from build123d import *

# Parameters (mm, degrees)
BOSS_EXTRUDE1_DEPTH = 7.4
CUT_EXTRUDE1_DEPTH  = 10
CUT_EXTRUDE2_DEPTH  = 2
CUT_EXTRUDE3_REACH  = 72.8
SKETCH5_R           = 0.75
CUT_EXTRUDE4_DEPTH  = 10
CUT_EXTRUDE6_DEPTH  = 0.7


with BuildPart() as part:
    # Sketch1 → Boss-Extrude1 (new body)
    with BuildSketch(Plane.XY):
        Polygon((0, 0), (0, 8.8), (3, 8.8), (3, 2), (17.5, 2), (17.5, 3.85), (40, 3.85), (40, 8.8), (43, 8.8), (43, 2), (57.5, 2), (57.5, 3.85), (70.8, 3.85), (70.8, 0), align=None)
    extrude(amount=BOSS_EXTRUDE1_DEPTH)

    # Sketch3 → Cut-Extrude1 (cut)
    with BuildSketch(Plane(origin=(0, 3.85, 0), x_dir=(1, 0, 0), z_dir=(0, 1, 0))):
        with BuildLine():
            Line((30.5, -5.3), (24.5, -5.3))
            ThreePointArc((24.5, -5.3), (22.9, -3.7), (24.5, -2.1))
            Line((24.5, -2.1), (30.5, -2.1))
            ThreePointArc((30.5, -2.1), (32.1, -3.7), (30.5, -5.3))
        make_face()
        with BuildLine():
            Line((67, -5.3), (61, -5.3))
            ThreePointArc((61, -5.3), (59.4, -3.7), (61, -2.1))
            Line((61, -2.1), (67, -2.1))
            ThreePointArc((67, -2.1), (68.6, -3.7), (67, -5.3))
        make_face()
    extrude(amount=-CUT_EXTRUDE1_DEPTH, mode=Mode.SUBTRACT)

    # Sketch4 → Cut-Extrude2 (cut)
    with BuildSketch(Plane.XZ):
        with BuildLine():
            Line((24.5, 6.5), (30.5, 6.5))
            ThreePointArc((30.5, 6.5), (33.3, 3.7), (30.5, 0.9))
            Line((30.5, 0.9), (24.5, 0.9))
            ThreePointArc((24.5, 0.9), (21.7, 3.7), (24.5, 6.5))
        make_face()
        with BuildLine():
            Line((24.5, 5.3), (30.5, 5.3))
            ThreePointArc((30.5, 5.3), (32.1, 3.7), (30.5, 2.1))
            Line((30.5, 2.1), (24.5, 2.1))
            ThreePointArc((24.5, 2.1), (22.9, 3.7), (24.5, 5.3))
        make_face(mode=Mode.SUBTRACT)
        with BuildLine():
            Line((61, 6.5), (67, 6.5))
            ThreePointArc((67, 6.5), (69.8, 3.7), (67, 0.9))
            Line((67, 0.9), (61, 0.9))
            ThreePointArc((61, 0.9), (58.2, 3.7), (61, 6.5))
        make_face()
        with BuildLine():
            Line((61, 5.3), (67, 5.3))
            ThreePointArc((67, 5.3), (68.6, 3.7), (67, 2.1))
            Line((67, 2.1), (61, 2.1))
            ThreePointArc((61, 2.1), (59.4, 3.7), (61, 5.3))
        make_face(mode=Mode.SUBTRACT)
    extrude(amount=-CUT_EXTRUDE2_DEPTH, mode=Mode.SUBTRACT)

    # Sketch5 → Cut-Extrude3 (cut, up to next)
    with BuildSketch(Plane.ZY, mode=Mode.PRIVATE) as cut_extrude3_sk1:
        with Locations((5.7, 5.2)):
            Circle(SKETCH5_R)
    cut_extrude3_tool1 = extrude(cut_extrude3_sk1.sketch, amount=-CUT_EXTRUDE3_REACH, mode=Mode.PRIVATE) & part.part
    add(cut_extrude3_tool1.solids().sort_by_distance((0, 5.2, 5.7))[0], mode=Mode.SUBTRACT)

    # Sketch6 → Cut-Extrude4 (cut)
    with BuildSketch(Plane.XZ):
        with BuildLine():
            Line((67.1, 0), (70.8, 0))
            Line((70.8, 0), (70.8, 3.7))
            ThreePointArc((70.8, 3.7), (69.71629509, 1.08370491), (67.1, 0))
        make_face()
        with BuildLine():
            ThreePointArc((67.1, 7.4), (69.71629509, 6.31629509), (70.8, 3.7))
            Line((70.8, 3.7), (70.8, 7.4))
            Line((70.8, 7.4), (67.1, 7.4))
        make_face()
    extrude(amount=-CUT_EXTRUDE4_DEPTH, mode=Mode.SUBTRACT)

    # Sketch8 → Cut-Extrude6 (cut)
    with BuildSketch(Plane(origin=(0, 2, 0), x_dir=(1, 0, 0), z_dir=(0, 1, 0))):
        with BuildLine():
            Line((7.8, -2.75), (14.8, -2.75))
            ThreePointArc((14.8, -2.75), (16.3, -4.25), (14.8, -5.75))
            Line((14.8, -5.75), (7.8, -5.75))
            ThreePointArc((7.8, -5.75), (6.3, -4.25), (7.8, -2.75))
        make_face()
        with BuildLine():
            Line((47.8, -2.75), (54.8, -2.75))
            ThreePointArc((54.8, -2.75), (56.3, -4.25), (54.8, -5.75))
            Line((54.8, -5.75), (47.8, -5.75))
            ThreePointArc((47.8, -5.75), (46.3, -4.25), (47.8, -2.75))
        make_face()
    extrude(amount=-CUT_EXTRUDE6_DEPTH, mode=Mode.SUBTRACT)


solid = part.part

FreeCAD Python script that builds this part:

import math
import FreeCAD as App
import Part
import Sketcher
from FreeCAD import Vector
Q = App.Units.Quantity


def add_polygon(sketch, points):
    """Adds a closed chain of lines whose ends are joined by coincident constraints."""
    first, n = sketch.GeometryCount, len(points)
    for a, b in zip(points, points[1:] + points[:1]):
        sketch.addGeometry(Part.LineSegment(App.Vector(*a, 0), App.Vector(*b, 0)), False)
    for i in range(n):
        sketch.addConstraint(Sketcher.Constraint("Coincident", first + i, 2, first + (i + 1) % n, 1))

doc = App.newDocument("Part")
body = doc.addObject("PartDesign::Body", "Body")

# Sketch on XY plane
sketch1 = body.newObject("Sketcher::SketchObject", "Sketch")
sketch1.AttachmentSupport = (doc.getObject("XY_Plane"), [""])
sketch1.MapMode = "FlatFace"
add_polygon(sketch1, [(0, 8.8), (0, 0), (70.8, 0), (70.8, 3.9), (57.5, 3.9), (57.5, 2), (43, 2), (43, 8.8), (40, 8.8), (40, 3.9), (17.5, 3.9), (17.5, 2), (3, 2), (3, 8.8)])  # lines 0-13
sketch1.addConstraint(Sketcher.Constraint("Vertical", 0))
sketch1.addConstraint(Sketcher.Constraint("Horizontal", 1))
sketch1.addConstraint(Sketcher.Constraint("Vertical", 2))
sketch1.addConstraint(Sketcher.Constraint("Horizontal", 3))
sketch1.addConstraint(Sketcher.Constraint("Vertical", 4))
sketch1.addConstraint(Sketcher.Constraint("Horizontal", 5))
sketch1.addConstraint(Sketcher.Constraint("Vertical", 6))
sketch1.addConstraint(Sketcher.Constraint("Horizontal", 7))
sketch1.addConstraint(Sketcher.Constraint("Vertical", 8))
sketch1.addConstraint(Sketcher.Constraint("Horizontal", 9))
sketch1.addConstraint(Sketcher.Constraint("Vertical", 10))
sketch1.addConstraint(Sketcher.Constraint("Horizontal", 11))
sketch1.addConstraint(Sketcher.Constraint("Vertical", 12))
sketch1.addConstraint(Sketcher.Constraint("Horizontal", 13))
sketch1.addConstraint(Sketcher.Constraint("Coincident", 0, 2, -1, 1))
sketch1.addConstraint(Sketcher.Constraint("Horizontal", 3, 2, 8, 2))
sketch1.addConstraint(Sketcher.Constraint("Horizontal", 5, 2, 10, 2))
sketch1.addConstraint(Sketcher.Constraint("Horizontal", 7, 2, 12, 2))
sketch1.addConstraint(Sketcher.Constraint("Equal", 5, 11))
sketch1.addConstraint(Sketcher.Constraint("Equal", 7, 13))
sketch1.addConstraint(Sketcher.Constraint("DistanceX", 7, 2, 7, 1, Q("3 mm")))
sketch1.addConstraint(Sketcher.Constraint("DistanceX", 1, 1, 1, 2, Q("70.8 mm")))
sketch1.addConstraint(Sketcher.Constraint("DistanceX", 3, 2, 3, 1, Q("13.3 mm")))
sketch1.addConstraint(Sketcher.Constraint("DistanceX", 5, 2, 5, 1, Q("14.5 mm")))
sketch1.addConstraint(Sketcher.Constraint("DistanceY", 0, 2, 0, 1, Q("8.8 mm")))
sketch1.addConstraint(Sketcher.Constraint("DistanceY", 6, 1, 6, 2, Q("6.8 mm")))
sketch1.addConstraint(Sketcher.Constraint("DistanceY", 2, 1, 2, 2, Q("3.85 mm")))
pad1 = body.newObject("PartDesign::Pad", "Pad")
pad1.Profile = sketch1
pad1.Length = 7.4

# Sketch on XZ plane
sketch2 = body.newObject("Sketcher::SketchObject", "Sketch001")
sketch2.AttachmentSupport = (doc.getObject("XZ_Plane"), [""])
sketch2.MapMode = "FlatFace"
sketch2.AttachmentOffset = App.Placement(Vector(0, 0, -3.85), App.Rotation())
sketch2.addGeometry(Part.LineSegment(Vector(24.5, 5.3, 0), Vector(30.5, 5.3, 0)), False)
sketch2.addGeometry(Part.ArcOfCircle(Part.Circle(Vector(30.5, 3.7, 0), Vector(0, 0, 1), 1.6), math.radians(-90), math.radians(90)), False)
sketch2.addGeometry(Part.LineSegment(Vector(30.5, 2.1, 0), Vector(24.5, 2.1, 0)), False)
sketch2.addGeometry(Part.ArcOfCircle(Part.Circle(Vector(24.5, 3.7, 0), Vector(0, 0, 1), 1.6), math.radians(90), math.radians(270)), False)
sketch2.addGeometry(Part.LineSegment(Vector(61, 5.3, 0), Vector(67, 5.3, 0)), False)
sketch2.addGeometry(Part.ArcOfCircle(Part.Circle(Vector(67, 3.7, 0), Vector(0, 0, 1), 1.6), math.radians(-90), math.radians(90)), False)
sketch2.addGeometry(Part.LineSegment(Vector(67, 2.1, 0), Vector(61, 2.1, 0)), False)
sketch2.addGeometry(Part.ArcOfCircle(Part.Circle(Vector(61, 3.7, 0), Vector(0, 0, 1), 1.6), math.radians(90), math.radians(270)), False)
sketch2.addConstraint(Sketcher.Constraint("Tangent", 0, 2, 1, 2))
sketch2.addConstraint(Sketcher.Constraint("Tangent", 1, 1, 2, 1))
sketch2.addConstraint(Sketcher.Constraint("Tangent", 2, 2, 3, 2))
sketch2.addConstraint(Sketcher.Constraint("Tangent", 3, 1, 0, 1))
sketch2.addConstraint(Sketcher.Constraint("Tangent", 4, 2, 5, 2))
sketch2.addConstraint(Sketcher.Constraint("Tangent", 5, 1, 6, 1))
sketch2.addConstraint(Sketcher.Constraint("Tangent", 6, 2, 7, 2))
sketch2.addConstraint(Sketcher.Constraint("Tangent", 7, 1, 4, 1))
sketch2.addConstraint(Sketcher.Constraint("Horizontal", 0))
sketch2.addConstraint(Sketcher.Constraint("Horizontal", 2))
sketch2.addConstraint(Sketcher.Constraint("Horizontal", 4))
sketch2.addConstraint(Sketcher.Constraint("Horizontal", 6))
sketch2.addConstraint(Sketcher.Constraint("Equal", 3, 5))
sketch2.addConstraint(Sketcher.Constraint("Horizontal", 3, 3, 5, 3))
sketch2.addConstraint(Sketcher.Constraint("Equal", 2, 4))
sketch2.addConstraint(Sketcher.Constraint("Radius", 1, Q("1.6 mm")))
sketch2.addConstraint(Sketcher.Constraint("DistanceX", 0, 1, 0, 2, Q("6 mm")))
sketch2.addConstraint(Sketcher.Constraint("DistanceX", -1, 1, 5, 3, Q("67 mm")))
sketch2.addConstraint(Sketcher.Constraint("DistanceX", -1, 1, 1, 3, Q("30.5 mm")))
sketch2.addConstraint(Sketcher.Constraint("DistanceY", -1, 1, 1, 3, Q("3.7 mm")))
pocket1 = body.newObject("PartDesign::Pocket", "Pocket")
pocket1.Profile = sketch2
pocket1.Length = 10
pocket1.Reversed = True

# Sketch on XZ plane
sketch3 = body.newObject("Sketcher::SketchObject", "Sketch002")
sketch3.AttachmentSupport = (doc.getObject("XZ_Plane"), [""])
sketch3.MapMode = "FlatFace"
sketch3.addGeometry(Part.LineSegment(Vector(30.5, 6.5, 0), Vector(24.5, 6.5, 0)), False)
sketch3.addGeometry(Part.ArcOfCircle(Part.Circle(Vector(24.5, 3.7, 0), Vector(0, 0, 1), 2.8), math.radians(90), math.radians(270)), False)
sketch3.addGeometry(Part.LineSegment(Vector(24.5, 0.9, 0), Vector(30.5, 0.9, 0)), False)
sketch3.addGeometry(Part.ArcOfCircle(Part.Circle(Vector(30.5, 3.7, 0), Vector(0, 0, 1), 2.8), math.radians(-90), math.radians(90)), False)
sketch3.addGeometry(Part.LineSegment(Vector(24.5, 5.3, 0), Vector(30.5, 5.3, 0)), False)
sketch3.addGeometry(Part.ArcOfCircle(Part.Circle(Vector(30.5, 3.7, 0), Vector(0, 0, 1), 1.6), math.radians(-90), math.radians(90)), False)
sketch3.addGeometry(Part.LineSegment(Vector(30.5, 2.1, 0), Vector(24.5, 2.1, 0)), False)
sketch3.addGeometry(Part.ArcOfCircle(Part.Circle(Vector(24.5, 3.7, 0), Vector(0, 0, 1), 1.6), math.radians(90), math.radians(270)), False)
sketch3.addGeometry(Part.LineSegment(Vector(67, 6.5, 0), Vector(61, 6.5, 0)), False)
sketch3.addGeometry(Part.ArcOfCircle(Part.Circle(Vector(61, 3.7, 0), Vector(0, 0, 1), 2.8), math.radians(90), math.radians(270)), False)
sketch3.addGeometry(Part.LineSegment(Vector(61, 0.9, 0), Vector(67, 0.9, 0)), False)
sketch3.addGeometry(Part.ArcOfCircle(Part.Circle(Vector(67, 3.7, 0), Vector(0, 0, 1), 2.8), math.radians(-90), math.radians(90)), False)
sketch3.addGeometry(Part.LineSegment(Vector(61, 5.3, 0), Vector(67, 5.3, 0)), False)
sketch3.addGeometry(Part.ArcOfCircle(Part.Circle(Vector(67, 3.7, 0), Vector(0, 0, 1), 1.6), math.radians(-90), math.radians(90)), False)
sketch3.addGeometry(Part.LineSegment(Vector(67, 2.1, 0), Vector(61, 2.1, 0)), False)
sketch3.addGeometry(Part.ArcOfCircle(Part.Circle(Vector(61, 3.7, 0), Vector(0, 0, 1), 1.6), math.radians(90), math.radians(270)), False)
sketch3.addConstraint(Sketcher.Constraint("Tangent", 0, 2, 1, 1))
sketch3.addConstraint(Sketcher.Constraint("Tangent", 1, 2, 2, 1))
sketch3.addConstraint(Sketcher.Constraint("Tangent", 2, 2, 3, 1))
sketch3.addConstraint(Sketcher.Constraint("Tangent", 3, 2, 0, 1))
sketch3.addConstraint(Sketcher.Constraint("Tangent", 4, 2, 5, 2))
sketch3.addConstraint(Sketcher.Constraint("Tangent", 5, 1, 6, 1))
sketch3.addConstraint(Sketcher.Constraint("Tangent", 6, 2, 7, 2))
sketch3.addConstraint(Sketcher.Constraint("Tangent", 7, 1, 4, 1))
sketch3.addConstraint(Sketcher.Constraint("Tangent", 8, 2, 9, 1))
sketch3.addConstraint(Sketcher.Constraint("Tangent", 9, 2, 10, 1))
sketch3.addConstraint(Sketcher.Constraint("Tangent", 10, 2, 11, 1))
sketch3.addConstraint(Sketcher.Constraint("Tangent", 11, 2, 8, 1))
sketch3.addConstraint(Sketcher.Constraint("Tangent", 12, 2, 13, 2))
sketch3.addConstraint(Sketcher.Constraint("Tangent", 13, 1, 14, 1))
sketch3.addConstraint(Sketcher.Constraint("Tangent", 14, 2, 15, 2))
sketch3.addConstraint(Sketcher.Constraint("Tangent", 15, 1, 12, 1))
sketch3.addConstraint(Sketcher.Constraint("Horizontal", 0))
sketch3.addConstraint(Sketcher.Constraint("Horizontal", 2))
sketch3.addConstraint(Sketcher.Constraint("Horizontal", 4))
sketch3.addConstraint(Sketcher.Constraint("Horizontal", 6))
sketch3.addConstraint(Sketcher.Constraint("Horizontal", 8))
sketch3.addConstraint(Sketcher.Constraint("Horizontal", 10))
sketch3.addConstraint(Sketcher.Constraint("Horizontal", 12))
sketch3.addConstraint(Sketcher.Constraint("Horizontal", 14))
sketch3.addConstraint(Sketcher.Constraint("Coincident", 5, 3, 3, 3))
sketch3.addConstraint(Sketcher.Constraint("Coincident", 13, 3, 11, 3))
sketch3.addConstraint(Sketcher.Constraint("Equal", 3, 9))
sketch3.addConstraint(Sketcher.Constraint("Equal", 7, 13))
sketch3.addConstraint(Sketcher.Constraint("Horizontal", 7, 3, 9, 3))
sketch3.addConstraint(Sketcher.Constraint("Vertical", 7, 3, 0, 2))
sketch3.addConstraint(Sketcher.Constraint("Vertical", 15, 3, 8, 2))
sketch3.addConstraint(Sketcher.Constraint("Equal", 6, 8))
sketch3.addConstraint(Sketcher.Constraint("Radius", 1, Q("2.8 mm")))
sketch3.addConstraint(Sketcher.Constraint("Radius", 5, Q("1.6 mm")))
sketch3.addConstraint(Sketcher.Constraint("DistanceX", 0, 2, 0, 1, Q("6 mm")))
sketch3.addConstraint(Sketcher.Constraint("DistanceX", -1, 1, 9, 3, Q("61 mm")))
sketch3.addConstraint(Sketcher.Constraint("DistanceX", -1, 1, 1, 3, Q("24.5 mm")))
sketch3.addConstraint(Sketcher.Constraint("DistanceY", -1, 1, 1, 3, Q("3.7 mm")))
pocket2 = body.newObject("PartDesign::Pocket", "Pocket001")
pocket2.Profile = sketch3
pocket2.Length = 2

# Sketch on YZ plane
sketch4 = body.newObject("Sketcher::SketchObject", "Sketch003")
sketch4.AttachmentSupport = (doc.getObject("YZ_Plane"), [""])
sketch4.MapMode = "FlatFace"
sketch4.addGeometry(Part.Circle(Vector(5.2, 5.7, 0), Vector(0, 0, 1), 0.8), False)
sketch4.addConstraint(Sketcher.Constraint("Diameter", 0, Q("1.5 mm")))
sketch4.addConstraint(Sketcher.Constraint("DistanceX", -1, 1, 0, 3, Q("5.2 mm")))
sketch4.addConstraint(Sketcher.Constraint("DistanceY", -1, 1, 0, 3, Q("5.7 mm")))
pocket3 = body.newObject("PartDesign::Pocket", "Pocket002")
pocket3.Profile = sketch4
pocket3.Type = "UpToFirst"
pocket3.Reversed = True

# Sketch on XZ plane
sketch5 = body.newObject("Sketcher::SketchObject", "Sketch004")
sketch5.AttachmentSupport = (doc.getObject("XZ_Plane"), [""])
sketch5.MapMode = "FlatFace"
sketch5.addGeometry(Part.LineSegment(Vector(67.1, 0, 0), Vector(70.8, 0, 0)), False)
sketch5.addGeometry(Part.LineSegment(Vector(70.8, 0, 0), Vector(70.8, 3.7, 0)), False)
sketch5.addGeometry(Part.ArcOfCircle(Part.Circle(Vector(67.1, 3.7, 0), Vector(0, 0, 1), 3.7), math.radians(-90), math.radians(0)), False)
sketch5.addGeometry(Part.ArcOfCircle(Part.Circle(Vector(67.1, 3.7, 0), Vector(0, 0, 1), 3.7), math.radians(0), math.radians(90)), False)
sketch5.addGeometry(Part.LineSegment(Vector(70.8, 3.7, 0), Vector(70.8, 7.4, 0)), False)
sketch5.addGeometry(Part.LineSegment(Vector(70.8, 7.4, 0), Vector(67.1, 7.4, 0)), False)
sketch5.addConstraint(Sketcher.Constraint("Coincident", 0, 2, 1, 1))
sketch5.addConstraint(Sketcher.Constraint("Tangent", 1, 2, 2, 2))
sketch5.addConstraint(Sketcher.Constraint("Tangent", 2, 1, 0, 1))
sketch5.addConstraint(Sketcher.Constraint("Tangent", 3, 1, 4, 1))
sketch5.addConstraint(Sketcher.Constraint("Coincident", 4, 2, 5, 1))
sketch5.addConstraint(Sketcher.Constraint("Tangent", 5, 2, 3, 2))
sketch5.addConstraint(Sketcher.Constraint("Horizontal", 0))
sketch5.addConstraint(Sketcher.Constraint("Vertical", 1))
sketch5.addConstraint(Sketcher.Constraint("Vertical", 4))
sketch5.addConstraint(Sketcher.Constraint("Horizontal", 5))
sketch5.addConstraint(Sketcher.Constraint("Coincident", 3, 3, 2, 3))
sketch5.addConstraint(Sketcher.Constraint("Equal", 2, 3))
sketch5.addConstraint(Sketcher.Constraint("PointOnObject", 0, 2, -1))
sketch5.addConstraint(Sketcher.Constraint("Radius", 2, Q("3.7 mm")))
sketch5.addConstraint(Sketcher.Constraint("DistanceX", -1, 1, 2, 3, Q("67.1 mm")))
pocket4 = body.newObject("PartDesign::Pocket", "Pocket003")
pocket4.Profile = sketch5
pocket4.Length = 10

# Sketch on XZ plane
sketch6 = body.newObject("Sketcher::SketchObject", "Sketch005")
sketch6.AttachmentSupport = (doc.getObject("XZ_Plane"), [""])
sketch6.MapMode = "FlatFace"
sketch6.AttachmentOffset = App.Placement(Vector(0, 0, -2), App.Rotation())
sketch6.addGeometry(Part.LineSegment(Vector(14.8, 2.8, 0), Vector(7.8, 2.8, 0)), False)
sketch6.addGeometry(Part.ArcOfCircle(Part.Circle(Vector(7.8, 4.2, 0), Vector(0, 0, 1), 1.5), math.radians(90), math.radians(270)), False)
sketch6.addGeometry(Part.LineSegment(Vector(7.8, 5.8, 0), Vector(14.8, 5.8, 0)), False)
sketch6.addGeometry(Part.ArcOfCircle(Part.Circle(Vector(14.8, 4.2, 0), Vector(0, 0, 1), 1.5), math.radians(-90), math.radians(90)), False)
sketch6.addGeometry(Part.LineSegment(Vector(54.8, 2.8, 0), Vector(47.8, 2.8, 0)), False)
sketch6.addGeometry(Part.ArcOfCircle(Part.Circle(Vector(47.8, 4.2, 0), Vector(0, 0, 1), 1.5), math.radians(90), math.radians(270)), False)
sketch6.addGeometry(Part.LineSegment(Vector(47.8, 5.8, 0), Vector(54.8, 5.8, 0)), False)
sketch6.addGeometry(Part.ArcOfCircle(Part.Circle(Vector(54.8, 4.2, 0), Vector(0, 0, 1), 1.5), math.radians(-90), math.radians(90)), False)
sketch6.addConstraint(Sketcher.Constraint("Tangent", 0, 2, 1, 2))
sketch6.addConstraint(Sketcher.Constraint("Tangent", 1, 1, 2, 1))
sketch6.addConstraint(Sketcher.Constraint("Tangent", 2, 2, 3, 2))
sketch6.addConstraint(Sketcher.Constraint("Tangent", 3, 1, 0, 1))
sketch6.addConstraint(Sketcher.Constraint("Tangent", 4, 2, 5, 2))
sketch6.addConstraint(Sketcher.Constraint("Tangent", 5, 1, 6, 1))
sketch6.addConstraint(Sketcher.Constraint("Tangent", 6, 2, 7, 2))
sketch6.addConstraint(Sketcher.Constraint("Tangent", 7, 1, 4, 1))
sketch6.addConstraint(Sketcher.Constraint("Horizontal", 0))
sketch6.addConstraint(Sketcher.Constraint("Horizontal", 2))
sketch6.addConstraint(Sketcher.Constraint("Horizontal", 4))
sketch6.addConstraint(Sketcher.Constraint("Horizontal", 6))
sketch6.addConstraint(Sketcher.Constraint("Equal", 3, 5))
sketch6.addConstraint(Sketcher.Constraint("Horizontal", 3, 3, 5, 3))
sketch6.addConstraint(Sketcher.Constraint("Equal", 2, 4))
sketch6.addConstraint(Sketcher.Constraint("Radius", 1, Q("1.5 mm")))
sketch6.addConstraint(Sketcher.Constraint("DistanceX", 0, 2, 0, 1, Q("7 mm")))
sketch6.addConstraint(Sketcher.Constraint("DistanceX", 3, 3, 5, 3, Q("33 mm")))
sketch6.addConstraint(Sketcher.Constraint("DistanceX", -1, 1, 1, 3, Q("7.8 mm")))
sketch6.addConstraint(Sketcher.Constraint("DistanceY", -1, 1, 1, 3, Q("4.25 mm")))
pocket5 = body.newObject("PartDesign::Pocket", "Pocket004")
pocket5.Profile = sketch6
pocket5.Length = 0.7
pocket5.Reversed = True

doc.recompute()
